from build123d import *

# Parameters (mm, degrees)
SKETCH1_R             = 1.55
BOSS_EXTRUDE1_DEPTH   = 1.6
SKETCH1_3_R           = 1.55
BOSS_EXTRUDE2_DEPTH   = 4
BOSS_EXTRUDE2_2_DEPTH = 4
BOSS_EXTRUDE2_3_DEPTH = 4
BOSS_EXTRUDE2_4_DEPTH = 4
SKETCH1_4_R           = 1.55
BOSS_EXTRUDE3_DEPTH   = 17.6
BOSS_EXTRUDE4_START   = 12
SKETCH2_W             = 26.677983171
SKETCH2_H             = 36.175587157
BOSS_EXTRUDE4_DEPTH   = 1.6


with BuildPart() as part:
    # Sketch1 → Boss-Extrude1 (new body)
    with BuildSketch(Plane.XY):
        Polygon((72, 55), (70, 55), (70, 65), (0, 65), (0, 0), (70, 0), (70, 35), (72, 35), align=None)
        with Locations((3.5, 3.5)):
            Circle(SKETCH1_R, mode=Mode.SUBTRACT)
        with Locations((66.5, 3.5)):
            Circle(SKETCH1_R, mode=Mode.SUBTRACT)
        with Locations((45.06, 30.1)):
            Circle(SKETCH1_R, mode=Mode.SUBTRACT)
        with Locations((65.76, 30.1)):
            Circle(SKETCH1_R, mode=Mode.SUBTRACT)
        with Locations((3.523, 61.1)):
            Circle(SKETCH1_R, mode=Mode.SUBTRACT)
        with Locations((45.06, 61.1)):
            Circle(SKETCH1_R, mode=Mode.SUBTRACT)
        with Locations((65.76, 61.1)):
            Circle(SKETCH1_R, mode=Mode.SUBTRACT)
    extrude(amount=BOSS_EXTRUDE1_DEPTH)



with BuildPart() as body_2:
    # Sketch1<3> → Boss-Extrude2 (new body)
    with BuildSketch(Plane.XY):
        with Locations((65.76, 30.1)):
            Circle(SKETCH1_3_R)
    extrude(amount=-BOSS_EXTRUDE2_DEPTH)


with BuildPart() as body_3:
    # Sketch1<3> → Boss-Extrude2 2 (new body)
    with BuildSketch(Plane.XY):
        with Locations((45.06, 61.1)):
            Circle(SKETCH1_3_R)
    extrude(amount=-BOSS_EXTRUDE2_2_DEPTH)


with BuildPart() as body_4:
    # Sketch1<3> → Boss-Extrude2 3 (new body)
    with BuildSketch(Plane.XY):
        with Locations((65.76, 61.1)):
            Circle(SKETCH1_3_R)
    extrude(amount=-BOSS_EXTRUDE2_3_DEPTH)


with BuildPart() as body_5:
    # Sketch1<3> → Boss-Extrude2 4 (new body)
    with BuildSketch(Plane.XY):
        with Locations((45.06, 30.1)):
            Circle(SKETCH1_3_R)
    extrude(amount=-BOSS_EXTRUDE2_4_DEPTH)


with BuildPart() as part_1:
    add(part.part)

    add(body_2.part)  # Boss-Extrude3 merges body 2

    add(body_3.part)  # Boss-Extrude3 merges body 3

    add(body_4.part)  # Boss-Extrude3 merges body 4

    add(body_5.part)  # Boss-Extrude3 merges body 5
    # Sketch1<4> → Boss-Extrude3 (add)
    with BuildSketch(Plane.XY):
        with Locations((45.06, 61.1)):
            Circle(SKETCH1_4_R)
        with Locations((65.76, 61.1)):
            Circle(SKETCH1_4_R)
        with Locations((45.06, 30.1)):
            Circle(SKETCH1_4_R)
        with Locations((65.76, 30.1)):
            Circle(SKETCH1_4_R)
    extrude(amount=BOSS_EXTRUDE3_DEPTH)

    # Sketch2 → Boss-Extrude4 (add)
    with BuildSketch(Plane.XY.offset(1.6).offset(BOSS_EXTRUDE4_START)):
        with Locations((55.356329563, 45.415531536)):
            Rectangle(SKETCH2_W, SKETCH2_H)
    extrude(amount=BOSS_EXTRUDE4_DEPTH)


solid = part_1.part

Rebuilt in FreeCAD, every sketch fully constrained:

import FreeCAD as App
import Part
import Sketcher


def add_polygon(sketch, points):
    """Adds a closed chain of lines whose ends are joined by coincident constraints."""
    first, n = sketch.GeometryCount, len(points)
    for a, b in zip(points, points[1:] + points[:1]):
        sketch.addGeometry(Part.LineSegment(App.Vector(*a, 0), App.Vector(*b, 0)), False)
    for i in range(n):
        sketch.addConstraint(Sketcher.Constraint("Coincident", first + i, 2, first + (i + 1) % n, 1))

doc = App.newDocument("Part")
body = doc.addObject("PartDesign::Body", "Body")

# Sketch on XY plane
sketch1 = body.newObject("Sketcher::SketchObject", "Sketch")
sketch1.AttachmentSupport = (doc.getObject("XY_Plane"), [""])
sketch1.MapMode = "FlatFace"
add_polygon(sketch1, [(72, 55), (70, 55), (70, 65), (0, 65), (0, 0), (70, 0), (70, 35), (72, 35)])  # lines 0-7
sketch1.addGeometry(Part.Circle(App.Vector(3.5, 3.5, 0), App.Vector(0, 0, 1), 1.6), False)  # 8
sketch1.addGeometry(Part.Circle(App.Vector(66.5, 3.5, 0), App.Vector(0, 0, 1), 1.6), False)  # 9
sketch1.addGeometry(Part.Circle(App.Vector(45.1, 30.1, 0), App.Vector(0, 0, 1), 1.6), False)  # 10
sketch1.addGeometry(Part.Circle(App.Vector(65.8, 30.1, 0), App.Vector(0, 0, 1), 1.6), False)  # 11
sketch1.addGeometry(Part.Circle(App.Vector(3.5, 61.1, 0), App.Vector(0, 0, 1), 1.6), False)  # 12
sketch1.addGeometry(Part.Circle(App.Vector(45.1, 61.1, 0), App.Vector(0, 0, 1), 1.6), False)  # 13
sketch1.addGeometry(Part.Circle(App.Vector(65.8, 61.1, 0), App.Vector(0, 0, 1), 1.6), False)  # 14
sketch1.addConstraint(Sketcher.Constraint("Horizontal", 0))
sketch1.addConstraint(Sketcher.Constraint("Vertical", 1))
sketch1.addConstraint(Sketcher.Constraint("Horizontal", 2))
sketch1.addConstraint(Sketcher.Constraint("Vertical", 3))
sketch1.addConstraint(Sketcher.Constraint("Horizontal", 4))
sketch1.addConstraint(Sketcher.Constraint("Vertical", 5))
sketch1.addConstraint(Sketcher.Constraint("Horizontal", 6))
sketch1.addConstraint(Sketcher.Constraint("Vertical", 7))
sketch1.addConstraint(Sketcher.Constraint("Coincident", 3, 2, -1, 1))
sketch1.addConstraint(Sketcher.Constraint("Equal", 8, 9))
sketch1.addConstraint(Sketcher.Constraint("Equal", 9, 10))
sketch1.addConstraint(Sketcher.Constraint("Equal", 10, 11))
sketch1.addConstraint(Sketcher.Constraint("Equal", 11, 12))
sketch1.addConstraint(Sketcher.Constraint("Equal", 12, 13))
sketch1.addConstraint(Sketcher.Constraint("Equal", 13, 14))
sketch1.addConstraint(Sketcher.Constraint("Horizontal", 8, 3, 9, 3))
sketch1.addConstraint(Sketcher.Constraint("Horizontal", 10, 3, 11, 3))
sketch1.addConstraint(Sketcher.Constraint("Horizontal", 12, 3, 13, 3))
sketch1.addConstraint(Sketcher.Constraint("Horizontal", 13, 3, 14, 3))
sketch1.addConstraint(Sketcher.Constraint("Vertical", 10, 3, 13, 3))
sketch1.addConstraint(Sketcher.Constraint("Vertical", 11, 3, 14, 3))
sketch1.addConstraint(Sketcher.Constraint("Vertical", 1, 2, 4, 2))
sketch1.addConstraint(Sketcher.Constraint("Diameter", 8, 3.1))
sketch1.addConstraint(Sketcher.Constraint("DistanceX", 0, 2, 0, 1, 2.0))
sketch1.addConstraint(Sketcher.Constraint("DistanceX", 2, 2, 2, 1, 70.0))
sketch1.addConstraint(Sketcher.Constraint("DistanceY", 1, 1, 1, 2, 10.0))
sketch1.addConstraint(Sketcher.Constraint("DistanceY", 3, 2, 3, 1, 65.0))
sketch1.addConstraint(Sketcher.Constraint("DistanceY", 5, 1, 5, 2, 35.0))
sketch1.addConstraint(Sketcher.Constraint("DistanceX", 8, 3, 9, 3, 63.0))
sketch1.addConstraint(Sketcher.Constraint("DistanceY", 10, 3, 12, 3, 31.0))
sketch1.addConstraint(Sketcher.Constraint("DistanceX", -1, 1, 8, 3, 3.5))
sketch1.addConstraint(Sketcher.Constraint("DistanceY", -1, 1, 8, 3, 3.5))
sketch1.addConstraint(Sketcher.Constraint("DistanceY", -1, 1, 10, 3, 30.1))
sketch1.addConstraint(Sketcher.Constraint("DistanceX", 10, 3, 11, 3, 20.7))
sketch1.addConstraint(Sketcher.Constraint("DistanceX", -1, 1, 10, 3, 45.06))
sketch1.addConstraint(Sketcher.Constraint("DistanceX", -1, 1, 12, 3, 3.523))
pad1 = body.newObject("PartDesign::Pad", "Pad")
pad1.Profile = sketch1
pad1.Length = 1.6
body2 = doc.addObject("PartDesign::Body", "Body001")

# Sketch on XY plane
sketch2 = body2.newObject("Sketcher::SketchObject", "Sketch001")
sketch2.AttachmentSupport = (doc.getObject("XY_Plane001"), [""])
sketch2.MapMode = "FlatFace"
sketch2.addGeometry(Part.Circle(App.Vector(65.8, 30.1, 0), App.Vector(0, 0, 1), 1.6), False)
sketch2.addConstraint(Sketcher.Constraint("Diameter", 0, 3.1))
sketch2.addConstraint(Sketcher.Constraint("DistanceY", -1, 1, 0, 3, 30.1))
sketch2.addConstraint(Sketcher.Constraint("DistanceX", -1, 1, 0, 3, 65.76))
pad2 = body2.newObject("PartDesign::Pad", "Pad001")
pad2.Profile = sketch2
pad2.Length = 4
pad2.Reversed = True
body3 = doc.addObject("PartDesign::Body", "Body002")

# Sketch on XY plane
sketch3 = body3.newObject("Sketcher::SketchObject", "Sketch002")
sketch3.AttachmentSupport = (doc.getObject("XY_Plane002"), [""])
sketch3.MapMode = "FlatFace"
sketch3.addGeometry(Part.Circle(App.Vector(45.1, 61.1, 0), App.Vector(0, 0, 1), 1.6), False)
sketch3.addConstraint(Sketcher.Constraint("Diameter", 0, 3.1))
sketch3.addConstraint(Sketcher.Constraint("DistanceY", -1, 1, 0, 3, 61.1))
sketch3.addConstraint(Sketcher.Constraint("DistanceX", -1, 1, 0, 3, 45.06))
pad3 = body3.newObject("PartDesign::Pad", "Pad002")
pad3.Profile = sketch3
pad3.Length = 4
pad3.Reversed = True
body4 = doc.addObject("PartDesign::Body", "Body003")

# Sketch on XY plane
sketch4 = body4.newObject("Sketcher::SketchObject", "Sketch003")
sketch4.AttachmentSupport = (doc.getObject("XY_Plane003"), [""])
sketch4.MapMode = "FlatFace"
sketch4.addGeometry(Part.Circle(App.Vector(65.8, 61.1, 0), App.Vector(0, 0, 1), 1.6), False)
sketch4.addConstraint(Sketcher.Constraint("Diameter", 0, 3.1))
sketch4.addConstraint(Sketcher.Constraint("DistanceY", -1, 1, 0, 3, 61.1))
sketch4.addConstraint(Sketcher.Constraint("DistanceX", -1, 1, 0, 3, 65.76))
pad4 = body4.newObject("PartDesign::Pad", "Pad003")
pad4.Profile = sketch4
pad4.Length = 4
pad4.Reversed = True
body5 = doc.addObject("PartDesign::Body", "Body004")

# Sketch on XY plane
sketch5 = body5.newObject("Sketcher::SketchObject", "Sketch004")
sketch5.AttachmentSupport = (doc.getObject("XY_Plane004"), [""])
sketch5.MapMode = "FlatFace"
sketch5.addGeometry(Part.Circle(App.Vector(45.1, 30.1, 0), App.Vector(0, 0, 1), 1.6), False)
sketch5.addConstraint(Sketcher.Constraint("Diameter", 0, 3.1))
sketch5.addConstraint(Sketcher.Constraint("DistanceY", -1, 1, 0, 3, 30.1))
sketch5.addConstraint(Sketcher.Constraint("DistanceX", -1, 1, 0, 3, 45.06))
pad5 = body5.newObject("PartDesign::Pad", "Pad004")
pad5.Profile = sketch5
pad5.Length = 4
pad5.Reversed = True
body.AllowCompound = True
doc.recompute()

boolean = body.newObject("PartDesign::Boolean", "Boolean")
boolean.Type = "Fuse"
boolean.addObjects([body2])
doc.recompute()

boolean2 = body.newObject("PartDesign::Boolean", "Boolean001")
boolean2.Type = "Fuse"
boolean2.addObjects([body3])
doc.recompute()

boolean3 = body.newObject("PartDesign::Boolean", "Boolean002")
boolean3.Type = "Fuse"
boolean3.addObjects([body4])
doc.recompute()

boolean4 = body.newObject("PartDesign::Boolean", "Boolean003")
boolean4.Type = "Fuse"
boolean4.addObjects([body5])

# Sketch on XY plane
sketch6 = body.newObject("Sketcher::SketchObject", "Sketch005")
sketch6.AttachmentSupport = (doc.getObject("XY_Plane"), [""])
sketch6.MapMode = "FlatFace"
sketch6.addGeometry(Part.Circle(App.Vector(45.1, 61.1, 0), App.Vector(0, 0, 1), 1.6), False)
sketch6.addGeometry(Part.Circle(App.Vector(65.8, 61.1, 0), App.Vector(0, 0, 1), 1.6), False)
sketch6.addGeometry(Part.Circle(App.Vector(45.1, 30.1, 0), App.Vector(0, 0, 1), 1.6), False)
sketch6.addGeometry(Part.Circle(App.Vector(65.8, 30.1, 0), App.Vector(0, 0, 1), 1.6), False)
sketch6.addConstraint(Sketcher.Constraint("Equal", 0, 1))
sketch6.addConstraint(Sketcher.Constraint("Equal", 1, 2))
sketch6.addConstraint(Sketcher.Constraint("Equal", 2, 3))
sketch6.addConstraint(Sketcher.Constraint("Horizontal", 0, 3, 1, 3))
sketch6.addConstraint(Sketcher.Constraint("Horizontal", 2, 3, 3, 3))
sketch6.addConstraint(Sketcher.Constraint("Vertical", 0, 3, 2, 3))
sketch6.addConstraint(Sketcher.Constraint("Vertical", 1, 3, 3, 3))
sketch6.addConstraint(Sketcher.Constraint("Diameter", 0, 3.1))
sketch6.addConstraint(Sketcher.Constraint("DistanceY", 2, 3, 0, 3, 31.0))
sketch6.addConstraint(Sketcher.Constraint("DistanceY", -1, 1, 0, 3, 61.1))
sketch6.addConstraint(Sketcher.Constraint("DistanceX", 0, 3, 1, 3, 20.7))
sketch6.addConstraint(Sketcher.Constraint("DistanceX", -1, 1, 0, 3, 45.06))
pad6 = body.newObject("PartDesign::Pad", "Pad005")
pad6.Profile = sketch6
pad6.Length = 17.6

# Sketch on XY plane
sketch7 = body.newObject("Sketcher::SketchObject", "Sketch006")
sketch7.AttachmentSupport = (doc.getObject("XY_Plane"), [""])
sketch7.MapMode = "FlatFace"
sketch7.AttachmentOffset = App.Placement(App.Vector(0, 0, 13.6), App.Rotation())
add_polygon(sketch7, [(42, 64), (42, 27), (69, 27), (69, 64)])  # lines 0-3
sketch7.addConstraint(Sketcher.Constraint("Vertical", 0))
sketch7.addConstraint(Sketcher.Constraint("Horizontal", 1))
sketch7.addConstraint(Sketcher.Constraint("Vertical", 2))
sketch7.addConstraint(Sketcher.Constraint("Horizontal", 3))
sketch7.addConstraint(Sketcher.Constraint("DistanceX", 1, 1, 1, 2, 26.677983))
sketch7.addConstraint(Sketcher.Constraint("DistanceY", 0, 2, 0, 1, 36.175587))
sketch7.addConstraint(Sketcher.Constraint("DistanceX", -1, 1, 1, 2, 68.695321))
sketch7.addConstraint(Sketcher.Constraint("DistanceY", -1, 1, 0, 2, 27.327738))
pad7 = body.newObject("PartDesign::Pad", "Pad006")
pad7.Profile = sketch7
pad7.Length = 1.6

doc.recompute()
